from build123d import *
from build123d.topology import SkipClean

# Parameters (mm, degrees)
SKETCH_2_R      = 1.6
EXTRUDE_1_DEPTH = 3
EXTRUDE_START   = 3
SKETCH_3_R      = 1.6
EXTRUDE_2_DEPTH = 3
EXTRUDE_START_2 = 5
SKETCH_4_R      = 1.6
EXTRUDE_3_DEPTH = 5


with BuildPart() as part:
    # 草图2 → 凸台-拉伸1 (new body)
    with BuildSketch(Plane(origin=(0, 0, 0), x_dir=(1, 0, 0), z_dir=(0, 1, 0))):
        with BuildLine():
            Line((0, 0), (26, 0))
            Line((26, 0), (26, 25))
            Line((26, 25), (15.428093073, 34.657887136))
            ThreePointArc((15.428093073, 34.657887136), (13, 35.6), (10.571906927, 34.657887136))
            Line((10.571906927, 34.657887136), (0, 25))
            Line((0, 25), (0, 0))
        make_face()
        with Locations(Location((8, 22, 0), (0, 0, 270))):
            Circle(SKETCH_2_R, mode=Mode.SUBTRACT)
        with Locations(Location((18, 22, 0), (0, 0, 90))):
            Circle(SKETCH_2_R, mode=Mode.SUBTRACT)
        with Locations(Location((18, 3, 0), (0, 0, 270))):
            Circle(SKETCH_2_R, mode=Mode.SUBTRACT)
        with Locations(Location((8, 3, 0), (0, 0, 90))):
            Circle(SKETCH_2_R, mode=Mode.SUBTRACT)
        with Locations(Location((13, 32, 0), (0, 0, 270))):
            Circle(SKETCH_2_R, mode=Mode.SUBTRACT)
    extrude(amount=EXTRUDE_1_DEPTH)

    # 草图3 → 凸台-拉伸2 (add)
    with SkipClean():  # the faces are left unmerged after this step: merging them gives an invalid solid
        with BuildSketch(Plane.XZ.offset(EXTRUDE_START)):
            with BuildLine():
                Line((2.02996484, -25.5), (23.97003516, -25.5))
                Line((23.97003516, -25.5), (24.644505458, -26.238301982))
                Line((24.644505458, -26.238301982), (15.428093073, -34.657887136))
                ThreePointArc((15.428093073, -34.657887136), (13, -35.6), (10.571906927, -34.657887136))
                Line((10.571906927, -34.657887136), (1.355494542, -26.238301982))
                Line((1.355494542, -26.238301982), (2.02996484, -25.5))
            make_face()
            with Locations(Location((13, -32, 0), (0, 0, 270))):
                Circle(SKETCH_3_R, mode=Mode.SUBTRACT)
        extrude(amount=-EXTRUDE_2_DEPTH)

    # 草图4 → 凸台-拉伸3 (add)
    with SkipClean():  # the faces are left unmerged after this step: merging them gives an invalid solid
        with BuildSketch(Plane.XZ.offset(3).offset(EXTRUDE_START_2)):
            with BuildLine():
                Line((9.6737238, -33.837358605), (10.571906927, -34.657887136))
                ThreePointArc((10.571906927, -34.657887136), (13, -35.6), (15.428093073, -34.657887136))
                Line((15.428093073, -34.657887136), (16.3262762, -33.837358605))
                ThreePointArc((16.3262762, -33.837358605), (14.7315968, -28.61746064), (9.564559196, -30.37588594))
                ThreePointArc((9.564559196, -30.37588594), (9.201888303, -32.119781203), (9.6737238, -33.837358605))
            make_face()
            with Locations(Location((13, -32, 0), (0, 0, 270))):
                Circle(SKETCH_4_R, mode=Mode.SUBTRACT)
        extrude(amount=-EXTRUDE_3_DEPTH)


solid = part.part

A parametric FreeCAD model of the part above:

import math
import FreeCAD as App
import Part
import Sketcher

V = App.Vector
Q = App.Units.Quantity

doc = App.newDocument("Part")
body = doc.addObject("PartDesign::Body", "Body")

sketch1 = body.newObject("Sketcher::SketchObject", "Sketch")
sketch1.AttachmentSupport = (doc.getObject("XZ_Plane"), [""])
sketch1.MapMode = "FlatFace"
sketch1.addGeometry(Part.LineSegment(V(0, 0, 0), V(26, 0, 0)), False)
sketch1.addGeometry(Part.LineSegment(V(26, 0, 0), V(26, -25, 0)), False)
sketch1.addGeometry(Part.LineSegment(V(26, -25, 0), V(15.4, -34.7, 0)), False)
sketch1.addGeometry(Part.ArcOfCircle(Part.Circle(V(13, -32, 0), V(0, 0, 1), 3.6), math.radians(-132), math.radians(-48)), False)
sketch1.addGeometry(Part.LineSegment(V(10.6, -34.7, 0), V(0, -25, 0)), False)
sketch1.addGeometry(Part.LineSegment(V(0, -25, 0), V(0, 0, 0)), False)
sketch1.addGeometry(Part.Circle(V(8, -3, 0), V(0, 0, 1), 1.6), False)
sketch1.addGeometry(Part.Circle(V(18, -3, 0), V(0, 0, 1), 1.6), False)
sketch1.addGeometry(Part.Circle(V(8, -22, 0), V(0, 0, 1), 1.6), False)
sketch1.addGeometry(Part.Circle(V(18, -22, 0), V(0, 0, 1), 1.6), False)
sketch1.addGeometry(Part.Circle(V(13, -32, 0), V(0, 0, 1), 1.6), False)
sketch1.addConstraint(Sketcher.Constraint("Coincident", 0, 2, 1, 1))
sketch1.addConstraint(Sketcher.Constraint("Coincident", 1, 2, 2, 1))
sketch1.addConstraint(Sketcher.Constraint("Tangent", 2, 2, 3, 2))
sketch1.addConstraint(Sketcher.Constraint("Tangent", 3, 1, 4, 1))
sketch1.addConstraint(Sketcher.Constraint("Coincident", 4, 2, 5, 1))
sketch1.addConstraint(Sketcher.Constraint("Coincident", 5, 2, 0, 1))
sketch1.addConstraint(Sketcher.Constraint("Horizontal", 0))
sketch1.addConstraint(Sketcher.Constraint("Vertical", 1))
sketch1.addConstraint(Sketcher.Constraint("Vertical", 5))
sketch1.addConstraint(Sketcher.Constraint("Coincident", 5, 2, -1, 1))
sketch1.addConstraint(Sketcher.Constraint("Coincident", 10, 3, 3, 3))
sketch1.addConstraint(Sketcher.Constraint("Equal", 6, 7))
sketch1.addConstraint(Sketcher.Constraint("Equal", 7, 8))
sketch1.addConstraint(Sketcher.Constraint("Equal", 8, 9))
sketch1.addConstraint(Sketcher.Constraint("Equal", 9, 10))
sketch1.addConstraint(Sketcher.Constraint("Horizontal", 6, 3, 7, 3))
sketch1.addConstraint(Sketcher.Constraint("Horizontal", 8, 3, 9, 3))
sketch1.addConstraint(Sketcher.Constraint("Horizontal", 2, 2, 3, 1))
sketch1.addConstraint(Sketcher.Constraint("Horizontal", 1, 2, 4, 2))
sketch1.addConstraint(Sketcher.Constraint("Vertical", 6, 3, 8, 3))
sketch1.addConstraint(Sketcher.Constraint("Vertical", 7, 3, 9, 3))
sketch1.addConstraint(Sketcher.Constraint("Diameter", 6, Q("3.2 mm")))
sketch1.addConstraint(Sketcher.Constraint("Radius", 3, Q("3.6 mm")))
sketch1.addConstraint(Sketcher.Constraint("DistanceX", 0, 1, 0, 2, Q("26 mm")))
sketch1.addConstraint(Sketcher.Constraint("DistanceY", 1, 2, 1, 1, Q("25 mm")))
sketch1.addConstraint(Sketcher.Constraint("DistanceY", 3, 3, -1, 1, Q("32 mm")))
sketch1.addConstraint(Sketcher.Constraint("DistanceX", -1, 1, 6, 3, Q("8 mm")))
sketch1.addConstraint(Sketcher.Constraint("DistanceY", 6, 3, -1, 1, Q("3 mm")))
sketch1.addConstraint(Sketcher.Constraint("DistanceX", -1, 1, 7, 3, Q("18 mm")))
sketch1.addConstraint(Sketcher.Constraint("DistanceY", 8, 3, -1, 1, Q("22 mm")))
pad1 = body.newObject("PartDesign::Pad", "Pad")
pad1.Profile = sketch1
pad1.Length = 3
pad1.Reversed = True

sketch2 = body.newObject("Sketcher::SketchObject", "Sketch001")
sketch2.AttachmentSupport = (doc.getObject("XZ_Plane"), [""])
sketch2.MapMode = "FlatFace"
sketch2.AttachmentOffset = App.Placement(V(0, 0, 3), App.Rotation())
sketch2.addGeometry(Part.LineSegment(V(24, -25.5, 0), V(2, -25.5, 0)), False)
sketch2.addGeometry(Part.LineSegment(V(2, -25.5, 0), V(1.4, -26.2, 0)), False)
sketch2.addGeometry(Part.LineSegment(V(1.4, -26.2, 0), V(10.6, -34.7, 0)), False)
sketch2.addGeometry(Part.ArcOfCircle(Part.Circle(V(13, -32, 0), V(0, 0, 1), 3.6), math.radians(-132), math.radians(-48)), False)
sketch2.addGeometry(Part.LineSegment(V(15.4, -34.7, 0), V(24.6, -26.2, 0)), False)
sketch2.addGeometry(Part.LineSegment(V(24.6, -26.2, 0), V(24, -25.5, 0)), False)
sketch2.addGeometry(Part.Circle(V(13, -32, 0), V(0, 0, 1), 1.6), False)
sketch2.addConstraint(Sketcher.Constraint("Coincident", 0, 2, 1, 1))
sketch2.addConstraint(Sketcher.Constraint("Coincident", 1, 2, 2, 1))
sketch2.addConstraint(Sketcher.Constraint("Tangent", 2, 2, 3, 1))
sketch2.addConstraint(Sketcher.Constraint("Tangent", 3, 2, 4, 1))
sketch2.addConstraint(Sketcher.Constraint("Coincident", 4, 2, 5, 1))
sketch2.addConstraint(Sketcher.Constraint("Coincident", 5, 2, 0, 1))
sketch2.addConstraint(Sketcher.Constraint("Horizontal", 0))
sketch2.addConstraint(Sketcher.Constraint("Coincident", 6, 3, 3, 3))
sketch2.addConstraint(Sketcher.Constraint("Perpendicular", 1, 2))
sketch2.addConstraint(Sketcher.Constraint("Perpendicular", 4, 5))
sketch2.addConstraint(Sketcher.Constraint("Horizontal", 2, 2, 3, 2))
sketch2.addConstraint(Sketcher.Constraint("Horizontal", 1, 2, 4, 2))
sketch2.addConstraint(Sketcher.Constraint("Diameter", 6, Q("3.2 mm")))
sketch2.addConstraint(Sketcher.Constraint("Radius", 3, Q("3.6 mm")))
sketch2.addConstraint(Sketcher.Constraint("Distance", 1, Q("1 mm")))
sketch2.addConstraint(Sketcher.Constraint("DistanceX", -1, 1, 3, 3, Q("13 mm")))
sketch2.addConstraint(Sketcher.Constraint("DistanceY", 3, 3, -1, 1, Q("32 mm")))
sketch2.addConstraint(Sketcher.Constraint("DistanceY", 0, 2, -1, 1, Q("25.5 mm")))
sketch2.addConstraint(Sketcher.Constraint("DistanceX", 0, 2, 0, 1, Q("21.94007 mm")))
pad2 = body.newObject("PartDesign::Pad", "Pad001")
pad2.Profile = sketch2
pad2.Length = 3
pad2.Reversed = True

sketch3 = body.newObject("Sketcher::SketchObject", "Sketch002")
sketch3.AttachmentSupport = (doc.getObject("XZ_Plane"), [""])
sketch3.MapMode = "FlatFace"
sketch3.AttachmentOffset = App.Placement(V(0, 0, 8), App.Rotation())
sketch3.addGeometry(Part.LineSegment(V(9.7, -33.8, 0), V(10.6, -34.7, 0)), False)
sketch3.addGeometry(Part.ArcOfCircle(Part.Circle(V(13, -32, 0), V(0, 0, 1), 3.6), math.radians(-132), math.radians(-48)), False)
sketch3.addGeometry(Part.LineSegment(V(15.4, -34.7, 0), V(16.3, -33.8, 0)), False)
sketch3.addGeometry(Part.ArcOfCircle(Part.Circle(V(13, -32, 0), V(0, 0, 1), 3.8), math.radians(-29), math.radians(155)), False)
sketch3.addGeometry(Part.ArcOfCircle(Part.Circle(V(13, -32, 0), V(0, 0, 1), 3.8), math.radians(155), math.radians(209)), False)
sketch3.addGeometry(Part.Circle(V(13, -32, 0), V(0, 0, 1), 1.6), False)
sketch3.addConstraint(Sketcher.Constraint("Tangent", 0, 2, 1, 1))
sketch3.addConstraint(Sketcher.Constraint("Tangent", 1, 2, 2, 1))
sketch3.addConstraint(Sketcher.Constraint("Coincident", 2, 2, 3, 1))
sketch3.addConstraint(Sketcher.Constraint("Tangent", 3, 2, 4, 1))
sketch3.addConstraint(Sketcher.Constraint("Coincident", 4, 2, 0, 1))
sketch3.addConstraint(Sketcher.Constraint("Coincident", 3, 3, 1, 3))
sketch3.addConstraint(Sketcher.Constraint("Coincident", 5, 3, 1, 3))
sketch3.addConstraint(Sketcher.Constraint("Equal", 3, 4))
sketch3.addConstraint(Sketcher.Constraint("Horizontal", 0, 2, 1, 2))
sketch3.addConstraint(Sketcher.Constraint("Diameter", 5, Q("3.2 mm")))
sketch3.addConstraint(Sketcher.Constraint("Radius", 1, Q("3.6 mm")))
sketch3.addConstraint(Sketcher.Constraint("Radius", 3, Q("3.8 mm")))
sketch3.addConstraint(Sketcher.Constraint("DistanceX", -1, 1, 1, 3, Q("13 mm")))
sketch3.addConstraint(Sketcher.Constraint("DistanceY", 1, 3, -1, 1, Q("32 mm")))
sketch3.addConstraint(Sketcher.Constraint("DistanceY", 0, 2, 3, 2, Q("4.282001 mm")))
sketch3.addConstraint(Sketcher.Constraint("DistanceY", 2, 2, -1, 1, Q("33.837359 mm")))
pad3 = body.newObject("PartDesign::Pad", "Pad002")
pad3.Profile = sketch3
pad3.Length = 5
pad3.Reversed = True

doc.recompute()
